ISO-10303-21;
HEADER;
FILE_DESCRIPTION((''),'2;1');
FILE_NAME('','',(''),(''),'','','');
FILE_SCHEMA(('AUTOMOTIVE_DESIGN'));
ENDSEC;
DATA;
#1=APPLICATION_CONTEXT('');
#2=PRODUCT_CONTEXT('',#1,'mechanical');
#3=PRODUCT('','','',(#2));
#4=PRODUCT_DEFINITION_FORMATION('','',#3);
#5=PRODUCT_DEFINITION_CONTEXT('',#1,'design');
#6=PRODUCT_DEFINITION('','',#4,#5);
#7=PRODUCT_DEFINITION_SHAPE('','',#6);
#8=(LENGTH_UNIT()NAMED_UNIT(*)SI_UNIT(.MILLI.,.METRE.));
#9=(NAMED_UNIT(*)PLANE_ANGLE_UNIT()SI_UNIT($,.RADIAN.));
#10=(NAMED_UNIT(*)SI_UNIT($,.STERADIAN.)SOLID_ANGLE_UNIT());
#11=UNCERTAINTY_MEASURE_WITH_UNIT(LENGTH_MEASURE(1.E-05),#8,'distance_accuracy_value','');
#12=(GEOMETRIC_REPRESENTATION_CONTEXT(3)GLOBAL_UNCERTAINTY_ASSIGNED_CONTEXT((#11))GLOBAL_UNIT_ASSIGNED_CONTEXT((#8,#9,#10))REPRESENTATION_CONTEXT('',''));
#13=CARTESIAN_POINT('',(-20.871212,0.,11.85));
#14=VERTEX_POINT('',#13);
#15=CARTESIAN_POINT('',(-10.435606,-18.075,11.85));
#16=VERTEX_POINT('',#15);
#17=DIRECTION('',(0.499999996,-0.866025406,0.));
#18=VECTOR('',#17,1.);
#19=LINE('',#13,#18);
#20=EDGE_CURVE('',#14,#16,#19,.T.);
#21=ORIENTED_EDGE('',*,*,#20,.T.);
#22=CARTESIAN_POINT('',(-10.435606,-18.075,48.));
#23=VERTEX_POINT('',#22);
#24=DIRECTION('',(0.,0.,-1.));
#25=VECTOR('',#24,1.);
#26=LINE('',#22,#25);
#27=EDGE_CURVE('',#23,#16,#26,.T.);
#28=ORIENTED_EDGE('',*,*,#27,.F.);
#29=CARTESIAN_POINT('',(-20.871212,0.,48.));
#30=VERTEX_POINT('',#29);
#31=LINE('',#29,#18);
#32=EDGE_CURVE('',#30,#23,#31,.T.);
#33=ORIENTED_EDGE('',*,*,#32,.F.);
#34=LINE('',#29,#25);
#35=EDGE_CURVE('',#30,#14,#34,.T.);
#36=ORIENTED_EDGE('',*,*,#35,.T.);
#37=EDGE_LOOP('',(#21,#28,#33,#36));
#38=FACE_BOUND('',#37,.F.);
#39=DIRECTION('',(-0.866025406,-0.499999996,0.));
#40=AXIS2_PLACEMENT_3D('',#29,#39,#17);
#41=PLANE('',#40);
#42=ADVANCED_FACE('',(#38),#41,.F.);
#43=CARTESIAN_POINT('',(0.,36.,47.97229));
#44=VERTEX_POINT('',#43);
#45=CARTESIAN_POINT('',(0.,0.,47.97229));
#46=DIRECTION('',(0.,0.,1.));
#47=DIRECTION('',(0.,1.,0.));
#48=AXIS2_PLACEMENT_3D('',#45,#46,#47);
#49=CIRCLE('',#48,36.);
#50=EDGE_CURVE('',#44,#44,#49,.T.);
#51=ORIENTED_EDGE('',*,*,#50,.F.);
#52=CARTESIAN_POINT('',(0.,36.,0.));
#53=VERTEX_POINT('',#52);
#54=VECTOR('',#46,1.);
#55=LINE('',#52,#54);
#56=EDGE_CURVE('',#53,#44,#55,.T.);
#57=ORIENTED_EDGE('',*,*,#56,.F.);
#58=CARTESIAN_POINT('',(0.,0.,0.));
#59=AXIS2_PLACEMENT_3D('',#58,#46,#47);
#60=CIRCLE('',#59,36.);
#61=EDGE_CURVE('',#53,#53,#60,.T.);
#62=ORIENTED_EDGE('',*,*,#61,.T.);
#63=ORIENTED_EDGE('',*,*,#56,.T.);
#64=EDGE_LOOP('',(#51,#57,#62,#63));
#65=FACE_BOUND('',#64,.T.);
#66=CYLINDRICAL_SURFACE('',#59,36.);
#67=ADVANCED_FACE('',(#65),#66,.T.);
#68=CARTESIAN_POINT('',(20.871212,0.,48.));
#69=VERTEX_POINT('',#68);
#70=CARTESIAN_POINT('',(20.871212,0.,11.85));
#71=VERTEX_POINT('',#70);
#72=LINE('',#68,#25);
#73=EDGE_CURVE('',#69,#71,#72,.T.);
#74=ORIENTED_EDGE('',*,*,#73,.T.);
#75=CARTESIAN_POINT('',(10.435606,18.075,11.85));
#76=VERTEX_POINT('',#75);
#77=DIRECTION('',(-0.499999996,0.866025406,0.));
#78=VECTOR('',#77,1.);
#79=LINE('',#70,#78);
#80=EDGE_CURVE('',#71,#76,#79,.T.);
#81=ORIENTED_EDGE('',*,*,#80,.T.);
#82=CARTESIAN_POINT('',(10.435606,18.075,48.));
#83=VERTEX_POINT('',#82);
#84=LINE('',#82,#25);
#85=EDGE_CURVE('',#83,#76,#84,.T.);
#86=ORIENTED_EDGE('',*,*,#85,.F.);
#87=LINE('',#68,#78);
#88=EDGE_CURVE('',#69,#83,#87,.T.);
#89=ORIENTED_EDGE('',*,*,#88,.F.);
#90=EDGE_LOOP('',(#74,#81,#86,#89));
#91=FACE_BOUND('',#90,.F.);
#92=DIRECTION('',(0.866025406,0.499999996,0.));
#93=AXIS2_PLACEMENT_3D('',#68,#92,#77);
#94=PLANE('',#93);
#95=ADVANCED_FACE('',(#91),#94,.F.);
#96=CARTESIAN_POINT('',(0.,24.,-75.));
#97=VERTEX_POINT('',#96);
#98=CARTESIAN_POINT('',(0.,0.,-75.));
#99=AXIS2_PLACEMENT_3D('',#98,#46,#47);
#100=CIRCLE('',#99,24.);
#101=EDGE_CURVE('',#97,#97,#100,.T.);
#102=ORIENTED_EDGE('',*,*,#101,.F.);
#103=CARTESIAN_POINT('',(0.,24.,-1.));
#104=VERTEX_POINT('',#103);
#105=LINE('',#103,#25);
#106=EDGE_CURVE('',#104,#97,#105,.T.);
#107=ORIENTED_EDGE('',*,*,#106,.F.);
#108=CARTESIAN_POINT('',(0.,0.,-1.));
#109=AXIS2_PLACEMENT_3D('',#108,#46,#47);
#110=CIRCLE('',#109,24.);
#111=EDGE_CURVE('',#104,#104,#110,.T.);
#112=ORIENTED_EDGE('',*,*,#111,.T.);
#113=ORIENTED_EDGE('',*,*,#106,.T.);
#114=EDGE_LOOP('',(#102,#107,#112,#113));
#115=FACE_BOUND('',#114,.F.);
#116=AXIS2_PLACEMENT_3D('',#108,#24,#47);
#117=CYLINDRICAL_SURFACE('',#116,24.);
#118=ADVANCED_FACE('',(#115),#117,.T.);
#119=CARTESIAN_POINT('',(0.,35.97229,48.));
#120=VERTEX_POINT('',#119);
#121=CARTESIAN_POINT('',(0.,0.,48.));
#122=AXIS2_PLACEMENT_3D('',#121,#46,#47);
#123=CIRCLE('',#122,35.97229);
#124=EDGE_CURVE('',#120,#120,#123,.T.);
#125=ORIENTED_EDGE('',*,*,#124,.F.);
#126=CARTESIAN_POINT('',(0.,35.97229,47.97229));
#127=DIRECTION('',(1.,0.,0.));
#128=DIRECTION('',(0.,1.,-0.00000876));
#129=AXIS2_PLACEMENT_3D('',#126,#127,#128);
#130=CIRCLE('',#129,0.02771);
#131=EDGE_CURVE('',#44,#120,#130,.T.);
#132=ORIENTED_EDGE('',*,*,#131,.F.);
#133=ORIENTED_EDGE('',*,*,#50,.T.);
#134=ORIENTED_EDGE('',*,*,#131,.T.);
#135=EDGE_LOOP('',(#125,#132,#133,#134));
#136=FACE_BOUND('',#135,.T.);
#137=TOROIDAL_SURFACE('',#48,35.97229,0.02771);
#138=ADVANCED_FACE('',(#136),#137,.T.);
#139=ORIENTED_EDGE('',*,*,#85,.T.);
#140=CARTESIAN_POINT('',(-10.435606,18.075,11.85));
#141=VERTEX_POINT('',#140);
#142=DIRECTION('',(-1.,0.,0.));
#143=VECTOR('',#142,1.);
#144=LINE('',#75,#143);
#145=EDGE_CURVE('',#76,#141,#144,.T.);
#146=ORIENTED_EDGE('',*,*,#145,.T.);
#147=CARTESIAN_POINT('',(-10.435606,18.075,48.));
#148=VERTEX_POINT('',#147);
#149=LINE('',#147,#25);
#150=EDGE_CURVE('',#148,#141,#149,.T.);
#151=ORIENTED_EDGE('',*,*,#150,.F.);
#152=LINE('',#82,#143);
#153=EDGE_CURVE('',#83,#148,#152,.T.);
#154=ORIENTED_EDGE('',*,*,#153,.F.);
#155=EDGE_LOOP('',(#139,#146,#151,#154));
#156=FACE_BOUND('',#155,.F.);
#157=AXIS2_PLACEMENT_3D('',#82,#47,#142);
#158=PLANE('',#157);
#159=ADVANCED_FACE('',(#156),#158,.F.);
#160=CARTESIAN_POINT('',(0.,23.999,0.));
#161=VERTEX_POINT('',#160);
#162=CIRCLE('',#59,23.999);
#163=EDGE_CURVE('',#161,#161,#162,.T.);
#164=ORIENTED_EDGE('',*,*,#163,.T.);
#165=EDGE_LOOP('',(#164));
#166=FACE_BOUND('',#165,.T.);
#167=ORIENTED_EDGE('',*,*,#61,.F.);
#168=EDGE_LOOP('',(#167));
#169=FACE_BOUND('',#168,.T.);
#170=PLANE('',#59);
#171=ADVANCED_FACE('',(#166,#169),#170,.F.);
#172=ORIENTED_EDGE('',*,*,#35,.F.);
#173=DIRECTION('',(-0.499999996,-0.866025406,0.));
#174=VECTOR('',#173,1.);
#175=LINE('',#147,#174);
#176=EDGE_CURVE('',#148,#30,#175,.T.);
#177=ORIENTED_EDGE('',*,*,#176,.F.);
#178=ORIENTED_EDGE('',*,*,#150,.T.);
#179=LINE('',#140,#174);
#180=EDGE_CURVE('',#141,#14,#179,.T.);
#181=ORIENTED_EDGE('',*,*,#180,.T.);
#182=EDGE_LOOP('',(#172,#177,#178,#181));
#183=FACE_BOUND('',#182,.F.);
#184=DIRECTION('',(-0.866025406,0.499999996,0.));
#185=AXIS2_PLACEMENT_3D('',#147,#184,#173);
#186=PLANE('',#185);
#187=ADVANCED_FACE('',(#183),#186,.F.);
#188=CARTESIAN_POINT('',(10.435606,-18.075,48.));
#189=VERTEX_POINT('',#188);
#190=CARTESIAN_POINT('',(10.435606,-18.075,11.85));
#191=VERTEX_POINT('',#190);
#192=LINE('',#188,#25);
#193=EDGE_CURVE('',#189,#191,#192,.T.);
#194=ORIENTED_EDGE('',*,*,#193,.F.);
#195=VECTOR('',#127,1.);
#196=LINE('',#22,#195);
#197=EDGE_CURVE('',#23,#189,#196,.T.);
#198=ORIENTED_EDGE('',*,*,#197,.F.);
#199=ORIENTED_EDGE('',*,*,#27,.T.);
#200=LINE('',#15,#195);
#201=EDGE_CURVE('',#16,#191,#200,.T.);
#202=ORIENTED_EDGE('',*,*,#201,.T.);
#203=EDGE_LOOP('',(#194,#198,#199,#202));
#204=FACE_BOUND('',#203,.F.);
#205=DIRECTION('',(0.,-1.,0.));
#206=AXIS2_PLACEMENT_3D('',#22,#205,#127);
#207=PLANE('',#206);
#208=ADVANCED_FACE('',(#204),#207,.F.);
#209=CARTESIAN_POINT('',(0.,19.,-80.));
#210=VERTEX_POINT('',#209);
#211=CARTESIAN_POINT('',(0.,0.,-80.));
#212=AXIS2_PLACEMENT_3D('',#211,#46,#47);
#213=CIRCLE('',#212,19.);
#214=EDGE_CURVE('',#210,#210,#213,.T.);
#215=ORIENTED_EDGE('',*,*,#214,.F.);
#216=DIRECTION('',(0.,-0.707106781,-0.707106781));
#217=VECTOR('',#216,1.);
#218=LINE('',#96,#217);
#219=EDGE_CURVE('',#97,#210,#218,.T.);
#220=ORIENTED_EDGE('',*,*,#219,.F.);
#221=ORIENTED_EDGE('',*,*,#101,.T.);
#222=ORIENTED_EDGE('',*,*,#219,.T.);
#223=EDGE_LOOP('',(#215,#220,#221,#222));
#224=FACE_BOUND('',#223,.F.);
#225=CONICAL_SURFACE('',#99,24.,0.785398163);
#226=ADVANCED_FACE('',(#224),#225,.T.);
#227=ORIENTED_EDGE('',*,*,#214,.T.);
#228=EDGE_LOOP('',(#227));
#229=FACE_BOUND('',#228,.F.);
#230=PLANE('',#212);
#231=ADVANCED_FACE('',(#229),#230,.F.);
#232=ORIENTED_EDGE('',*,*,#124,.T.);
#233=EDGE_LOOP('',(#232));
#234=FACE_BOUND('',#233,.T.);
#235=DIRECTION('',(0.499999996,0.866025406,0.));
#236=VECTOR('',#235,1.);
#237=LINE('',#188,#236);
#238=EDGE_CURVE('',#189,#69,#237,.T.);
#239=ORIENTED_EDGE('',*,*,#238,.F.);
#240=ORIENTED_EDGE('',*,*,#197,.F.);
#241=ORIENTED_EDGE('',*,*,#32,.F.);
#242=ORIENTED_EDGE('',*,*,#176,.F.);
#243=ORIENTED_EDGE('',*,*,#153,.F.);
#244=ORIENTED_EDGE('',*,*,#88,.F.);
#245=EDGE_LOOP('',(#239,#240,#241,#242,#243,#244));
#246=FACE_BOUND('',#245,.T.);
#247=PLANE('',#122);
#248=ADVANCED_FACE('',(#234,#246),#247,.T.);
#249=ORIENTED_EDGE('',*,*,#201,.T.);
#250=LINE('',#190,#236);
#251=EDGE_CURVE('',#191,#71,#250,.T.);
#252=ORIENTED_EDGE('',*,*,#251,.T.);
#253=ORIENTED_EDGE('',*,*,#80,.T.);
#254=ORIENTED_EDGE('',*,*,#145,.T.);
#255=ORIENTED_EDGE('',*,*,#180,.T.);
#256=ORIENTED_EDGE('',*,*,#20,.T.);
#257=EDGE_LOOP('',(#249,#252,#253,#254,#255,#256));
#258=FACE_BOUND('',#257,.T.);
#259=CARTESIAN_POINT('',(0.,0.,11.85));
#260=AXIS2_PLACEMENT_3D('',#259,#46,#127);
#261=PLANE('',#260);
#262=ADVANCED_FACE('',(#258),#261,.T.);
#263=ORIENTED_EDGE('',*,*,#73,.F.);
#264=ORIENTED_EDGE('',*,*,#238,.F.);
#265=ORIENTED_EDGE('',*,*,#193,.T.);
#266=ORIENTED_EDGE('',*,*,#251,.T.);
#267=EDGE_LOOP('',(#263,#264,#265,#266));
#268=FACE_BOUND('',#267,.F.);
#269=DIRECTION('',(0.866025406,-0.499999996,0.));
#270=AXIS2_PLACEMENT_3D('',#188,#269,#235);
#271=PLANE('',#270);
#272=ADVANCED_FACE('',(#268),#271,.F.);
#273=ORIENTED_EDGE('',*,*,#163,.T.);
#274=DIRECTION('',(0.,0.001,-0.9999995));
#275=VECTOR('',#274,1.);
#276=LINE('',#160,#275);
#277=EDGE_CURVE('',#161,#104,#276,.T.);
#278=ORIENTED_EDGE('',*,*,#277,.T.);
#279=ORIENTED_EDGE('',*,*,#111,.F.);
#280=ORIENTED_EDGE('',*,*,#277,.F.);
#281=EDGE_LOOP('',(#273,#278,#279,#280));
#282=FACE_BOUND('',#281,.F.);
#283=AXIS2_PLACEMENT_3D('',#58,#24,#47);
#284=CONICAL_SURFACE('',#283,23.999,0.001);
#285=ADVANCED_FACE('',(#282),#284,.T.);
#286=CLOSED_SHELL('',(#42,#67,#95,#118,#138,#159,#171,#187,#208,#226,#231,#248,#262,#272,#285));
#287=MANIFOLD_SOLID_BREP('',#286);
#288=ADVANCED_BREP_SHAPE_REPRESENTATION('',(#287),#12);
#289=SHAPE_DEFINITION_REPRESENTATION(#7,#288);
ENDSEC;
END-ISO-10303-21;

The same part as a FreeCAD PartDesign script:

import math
import FreeCAD as App
import Part
import Sketcher
Q = App.Units.Quantity


def add_polygon(sketch, points):
    """Adds a closed chain of lines whose ends are joined by coincident constraints."""
    first, n = sketch.GeometryCount, len(points)
    for a, b in zip(points, points[1:] + points[:1]):
        sketch.addGeometry(Part.LineSegment(App.Vector(*a, 0), App.Vector(*b, 0)), False)
    for i in range(n):
        sketch.addConstraint(Sketcher.Constraint("Coincident", first + i, 2, first + (i + 1) % n, 1))

doc = App.newDocument("Part")
params = doc.addObject("Spreadsheet::Sheet", "Params")
for row, (alias, value) in enumerate([
    ("sketch1_width", "19 mm"),
    ("sketch1_height", "128 mm"),
    ("sketch1_height2", "74 mm"),
    ("sketch1_length", "1 mm"),
    ("revolution_angle", "360 deg"),
    ("pocket1_length", "36.15 mm"),
], start=1):
    params.set(f"A{row}", alias)
    params.set(f"B{row}", "=" + value)
    params.setAlias(f"B{row}", alias)

body = doc.addObject("PartDesign::Body", "Body")

# Sketch on YZ plane
sketch1 = doc.addObject("Sketcher::SketchObject", "Sketch")
body.addObject(sketch1)
sketch1.AttachmentSupport = (doc.YZ_Plane, [""])
sketch1.MapMode = "FlatFace"
sketch1.addGeometry([
    Part.LineSegment(App.Vector(23.999, 0, 0), App.Vector(36, 0, 0)),  # 0
    Part.LineSegment(App.Vector(36, 0, 0), App.Vector(36, 47.97229, 0)),  # 1
    Part.ArcOfCircle(Part.Circle(App.Vector(35.97229, 47.97229, 0), App.Vector(0, 0, 1), 0.02771), math.radians(-0.000502), math.radians(90.000502)),  # 2
    Part.LineSegment(App.Vector(35.97229, 48, 0), App.Vector(0, 48, 0)),  # 3
    Part.LineSegment(App.Vector(0, 48, 0), App.Vector(0, -80, 0)),  # 4
    Part.LineSegment(App.Vector(0, -80, 0), App.Vector(19, -80, 0)),  # 5
    Part.LineSegment(App.Vector(19, -80, 0), App.Vector(24, -75, 0)),  # 6
    Part.LineSegment(App.Vector(24, -75, 0), App.Vector(24, -1, 0)),  # 7
    Part.LineSegment(App.Vector(24, -1, 0), App.Vector(23.999, 0, 0)),  # 8
], False)
sketch1.addConstraint([
    Sketcher.Constraint("Coincident", 0, 2, 1, 1),
    Sketcher.Constraint("Coincident", 1, 2, 2, 1),
    Sketcher.Constraint("Coincident", 2, 2, 3, 1),
    Sketcher.Constraint("Coincident", 3, 2, 4, 1),
    Sketcher.Constraint("Coincident", 4, 2, 5, 1),
    Sketcher.Constraint("Coincident", 5, 2, 6, 1),
    Sketcher.Constraint("Coincident", 6, 2, 7, 1),
    Sketcher.Constraint("Coincident", 7, 2, 8, 1),
    Sketcher.Constraint("Coincident", 8, 2, 0, 1),
    Sketcher.Constraint("Horizontal", 0),
    Sketcher.Constraint("Vertical", 1),
    Sketcher.Constraint("Horizontal", 3),
    Sketcher.Constraint("Vertical", 4),
    Sketcher.Constraint("Horizontal", 5),
    Sketcher.Constraint("Vertical", 7),
    Sketcher.Constraint("PointOnObject", 0, 2, -1),
    Sketcher.Constraint("PointOnObject", 3, 2, -2),
    Sketcher.Constraint("Horizontal", 2, 3, 1, 2),
    Sketcher.Constraint("DistanceX", 5, 1, 5, 2, 19.0),
    Sketcher.Constraint("DistanceY", 4, 2, 4, 1, 128.0),
    Sketcher.Constraint("DistanceY", 7, 1, 7, 2, 74.0),
    Sketcher.Constraint("Angle", 6, Q("45 deg")),
    Sketcher.Constraint("Distance", 8, 1.0),
    Sketcher.Constraint("DistanceX", -1, 1, 0, 2, 36.0),
    Sketcher.Constraint("DistanceY", -1, 1, 2, 2, 48.0),
    Sketcher.Constraint("DistanceX", 0, 1, 0, 2, 12.001),
    Sketcher.Constraint("Radius", 2, 0.02771),
    Sketcher.Constraint("DistanceX", 3, 2, 3, 1, 35.97229),
])
sketch1.setExpression("Constraints[18]", "Params.sketch1_width")
sketch1.setExpression("Constraints[19]", "Params.sketch1_height")
sketch1.setExpression("Constraints[20]", "Params.sketch1_height2")
sketch1.setExpression("Constraints[22]", "Params.sketch1_length")
revolution = doc.addObject("PartDesign::Revolution", "Revolution")
body.addObject(revolution)
revolution.Profile = sketch1
revolution.ReferenceAxis = (sketch1, ["V_Axis"])
revolution.setExpression("Angle", "Params.revolution_angle")

# Sketch on XY plane
sketch2 = doc.addObject("Sketcher::SketchObject", "Sketch001")
body.addObject(sketch2)
sketch2.AttachmentSupport = (doc.XY_Plane, [""])
sketch2.MapMode = "FlatFace"
sketch2.AttachmentOffset = App.Placement(App.Vector(0, 0, 48), App.Rotation())
add_polygon(sketch2, [(20.871212, 0), (10.435606, 18.075), (-10.435606, 18.075), (-20.871212, 0), (-10.435606, -18.075), (10.435606, -18.075)])  # lines 0-5
sketch2.addConstraint([
    Sketcher.Constraint("Horizontal", 1),
    Sketcher.Constraint("Horizontal", 4),
    Sketcher.Constraint("Symmetric", 0, 2, 3, 2, -1, 1),
    Sketcher.Constraint("Symmetric", 2, 2, 5, 2, -1, 1),
    Sketcher.Constraint("PointOnObject", 2, 2, -1),
    Sketcher.Constraint("Parallel", 2, 5),
    Sketcher.Constraint("Vertical", 1, 2, 3, 2),
    Sketcher.Constraint("Angle", 0, Q("120 deg")),
    Sketcher.Constraint("DistanceY", 3, 2, 1, 2, 36.15),
    Sketcher.Constraint("DistanceX", 1, 2, 1, 1, 20.871212),
])
pocket1 = doc.addObject("PartDesign::Pocket", "Pocket")
body.addObject(pocket1)
pocket1.Profile = sketch2
pocket1.setExpression("Length", "Params.pocket1_length")

doc.recompute()
